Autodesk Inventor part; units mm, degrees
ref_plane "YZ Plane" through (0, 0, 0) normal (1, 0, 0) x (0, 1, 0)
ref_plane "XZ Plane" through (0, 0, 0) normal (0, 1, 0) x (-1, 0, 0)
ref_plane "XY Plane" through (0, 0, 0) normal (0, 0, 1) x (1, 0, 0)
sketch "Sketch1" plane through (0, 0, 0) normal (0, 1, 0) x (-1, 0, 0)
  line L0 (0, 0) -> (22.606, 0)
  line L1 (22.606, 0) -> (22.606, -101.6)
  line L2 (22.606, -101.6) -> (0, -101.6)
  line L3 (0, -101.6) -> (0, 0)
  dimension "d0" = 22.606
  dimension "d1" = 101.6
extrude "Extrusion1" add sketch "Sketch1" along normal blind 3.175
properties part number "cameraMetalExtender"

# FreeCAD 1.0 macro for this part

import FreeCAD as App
import Part
import Sketcher
from FreeCAD import Vector
Q = App.Units.Quantity

doc = App.newDocument("Part")
body = doc.addObject("PartDesign::Body", "Body")

# Sketch on XZ plane
sketch1 = doc.addObject("Sketcher::SketchObject", "Sketch")
body.addObject(sketch1)
sketch1.AttachmentSupport = (doc.XZ_Plane, [""])
sketch1.MapMode = "FlatFace"
sketch1.addGeometry([
    Part.LineSegment(Vector(-23, 0, 0), Vector(0, 0, 0)),
    Part.LineSegment(Vector(0, 0, 0), Vector(0, -102, 0)),
    Part.LineSegment(Vector(0, -102, 0), Vector(-23, -102, 0)),
    Part.LineSegment(Vector(-23, -102, 0), Vector(-23, 0, 0)),
], False)
sketch1.addConstraint([
    Sketcher.Constraint("Coincident", 0, 2, 1, 1),
    Sketcher.Constraint("Coincident", 1, 2, 2, 1),
    Sketcher.Constraint("Coincident", 2, 2, 3, 1),
    Sketcher.Constraint("Coincident", 3, 2, 0, 1),
    Sketcher.Constraint("Horizontal", 0),
    Sketcher.Constraint("Vertical", 1),
    Sketcher.Constraint("Horizontal", 2),
    Sketcher.Constraint("Vertical", 3),
    Sketcher.Constraint("Coincident", 0, 2, -1, 1),
    Sketcher.Constraint("DistanceY", 1, 2, 1, 1, Q("4 in")),
    Sketcher.Constraint("DistanceX", 0, 1, 0, 2, Q("0.89 in")),
])
pad1 = doc.addObject("PartDesign::Pad", "Pad")
body.addObject(pad1)
pad1.Profile = sketch1
pad1.Length = Q("0.125 in")
pad1.Reversed = True

doc.recompute()
